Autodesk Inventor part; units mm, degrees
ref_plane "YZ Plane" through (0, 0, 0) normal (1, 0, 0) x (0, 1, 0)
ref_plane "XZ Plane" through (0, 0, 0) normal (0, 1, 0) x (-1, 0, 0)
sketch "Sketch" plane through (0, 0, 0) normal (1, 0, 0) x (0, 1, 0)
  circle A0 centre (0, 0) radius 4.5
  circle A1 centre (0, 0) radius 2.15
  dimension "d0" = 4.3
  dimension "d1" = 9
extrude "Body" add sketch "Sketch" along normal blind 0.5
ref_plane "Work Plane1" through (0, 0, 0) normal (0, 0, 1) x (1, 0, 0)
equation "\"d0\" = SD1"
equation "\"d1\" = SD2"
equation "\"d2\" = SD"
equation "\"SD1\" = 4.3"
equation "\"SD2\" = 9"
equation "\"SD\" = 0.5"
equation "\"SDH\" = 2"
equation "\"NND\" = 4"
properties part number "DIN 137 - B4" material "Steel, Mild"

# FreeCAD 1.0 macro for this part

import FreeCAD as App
import Part
import Sketcher
from FreeCAD import Vector
Q = App.Units.Quantity

doc = App.newDocument("Part")
body = doc.addObject("PartDesign::Body", "Body")

sketch1 = doc.addObject("Sketcher::SketchObject", "Sketch")
body.addObject(sketch1)
sketch1.AttachmentSupport = (doc.YZ_Plane, [""])
sketch1.MapMode = "FlatFace"
sketch1.addGeometry([
    Part.Circle(Vector(0, 0, 0), Vector(0, 0, 1), 4.5),
    Part.Circle(Vector(0, 0, 0), Vector(0, 0, 1), 2.15),
], False)
sketch1.addConstraint([
    Sketcher.Constraint("Coincident", 0, 3, -1, 1),
    Sketcher.Constraint("Coincident", 1, 3, -1, 1),
    Sketcher.Constraint("Diameter", 0, Q("9 mm")),
    Sketcher.Constraint("Diameter", 1, Q("4.3 mm")),
])
pad1 = doc.addObject("PartDesign::Pad", "Pad")
body.addObject(pad1)
pad1.Profile = sketch1
pad1.Length = 0.5

doc.recompute()
